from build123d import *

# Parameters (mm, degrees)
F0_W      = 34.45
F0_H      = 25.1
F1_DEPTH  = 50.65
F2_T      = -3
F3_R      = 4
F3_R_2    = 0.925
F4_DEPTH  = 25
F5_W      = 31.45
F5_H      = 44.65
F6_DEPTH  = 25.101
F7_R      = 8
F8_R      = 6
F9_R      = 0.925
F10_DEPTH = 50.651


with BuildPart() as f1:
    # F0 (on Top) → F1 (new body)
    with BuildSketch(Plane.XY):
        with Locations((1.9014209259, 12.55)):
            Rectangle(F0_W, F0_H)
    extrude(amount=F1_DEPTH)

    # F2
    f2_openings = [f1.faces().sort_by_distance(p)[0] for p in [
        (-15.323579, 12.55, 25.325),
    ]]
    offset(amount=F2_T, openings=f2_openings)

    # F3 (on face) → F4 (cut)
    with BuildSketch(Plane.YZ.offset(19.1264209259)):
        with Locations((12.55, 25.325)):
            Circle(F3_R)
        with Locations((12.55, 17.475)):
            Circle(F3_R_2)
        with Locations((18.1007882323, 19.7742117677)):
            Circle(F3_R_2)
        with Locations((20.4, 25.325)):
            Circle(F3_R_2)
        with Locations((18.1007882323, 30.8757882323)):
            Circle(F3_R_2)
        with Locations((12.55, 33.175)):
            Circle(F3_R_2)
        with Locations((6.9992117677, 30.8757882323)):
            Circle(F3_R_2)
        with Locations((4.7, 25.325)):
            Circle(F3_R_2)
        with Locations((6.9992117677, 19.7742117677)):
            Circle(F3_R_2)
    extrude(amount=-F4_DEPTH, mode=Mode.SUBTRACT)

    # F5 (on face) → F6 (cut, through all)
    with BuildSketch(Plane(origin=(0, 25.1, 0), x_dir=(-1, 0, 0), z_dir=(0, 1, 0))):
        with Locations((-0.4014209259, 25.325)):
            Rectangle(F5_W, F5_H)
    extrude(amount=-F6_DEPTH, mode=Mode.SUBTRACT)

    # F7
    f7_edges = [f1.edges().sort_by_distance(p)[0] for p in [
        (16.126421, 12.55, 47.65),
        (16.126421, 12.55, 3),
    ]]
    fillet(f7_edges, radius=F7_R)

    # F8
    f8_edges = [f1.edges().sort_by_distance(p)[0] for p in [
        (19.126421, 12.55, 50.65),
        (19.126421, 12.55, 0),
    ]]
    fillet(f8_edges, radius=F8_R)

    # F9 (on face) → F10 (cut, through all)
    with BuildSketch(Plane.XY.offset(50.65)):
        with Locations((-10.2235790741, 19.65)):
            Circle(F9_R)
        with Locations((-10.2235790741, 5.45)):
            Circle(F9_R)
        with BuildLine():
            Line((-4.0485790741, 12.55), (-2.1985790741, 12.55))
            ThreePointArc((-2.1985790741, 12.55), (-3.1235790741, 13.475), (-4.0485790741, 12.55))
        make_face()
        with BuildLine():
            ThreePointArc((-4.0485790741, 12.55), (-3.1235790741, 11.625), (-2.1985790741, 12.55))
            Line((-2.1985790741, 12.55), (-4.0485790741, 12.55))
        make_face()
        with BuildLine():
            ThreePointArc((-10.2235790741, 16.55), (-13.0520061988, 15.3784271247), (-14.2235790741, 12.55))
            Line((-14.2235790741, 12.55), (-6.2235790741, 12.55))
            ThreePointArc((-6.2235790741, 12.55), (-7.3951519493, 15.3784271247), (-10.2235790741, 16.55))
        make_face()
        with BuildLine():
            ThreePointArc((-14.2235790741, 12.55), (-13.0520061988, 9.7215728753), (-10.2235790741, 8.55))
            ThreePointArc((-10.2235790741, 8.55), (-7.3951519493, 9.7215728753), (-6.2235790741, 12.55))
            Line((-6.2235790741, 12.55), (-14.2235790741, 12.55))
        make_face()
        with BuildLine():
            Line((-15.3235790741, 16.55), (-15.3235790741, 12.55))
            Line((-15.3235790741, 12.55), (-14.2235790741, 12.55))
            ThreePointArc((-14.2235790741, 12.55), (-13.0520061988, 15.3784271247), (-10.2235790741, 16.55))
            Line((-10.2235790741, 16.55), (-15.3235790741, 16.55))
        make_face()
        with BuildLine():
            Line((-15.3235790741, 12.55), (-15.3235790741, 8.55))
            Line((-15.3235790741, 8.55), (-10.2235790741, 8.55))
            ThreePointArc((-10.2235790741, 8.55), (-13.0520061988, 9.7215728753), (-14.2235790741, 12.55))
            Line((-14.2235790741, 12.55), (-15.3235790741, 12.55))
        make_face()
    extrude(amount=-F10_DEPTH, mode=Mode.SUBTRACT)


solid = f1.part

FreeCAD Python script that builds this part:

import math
import FreeCAD as App
import Part
import Sketcher
from FreeCAD import Vector
Q = App.Units.Quantity


def edges_at(feature, points):
    """Names of the edges that pass closest to the given points."""
    edges = feature.Shape.Edges
    near = lambda p: min(range(len(edges)), key=lambda i: edges[i].distToShape(Part.Vertex(*p))[0])
    return sorted({f"Edge{near(p) + 1}" for p in points})


def faces_at(feature, points):
    """Names of the faces that lie closest to the given points."""
    faces = feature.Shape.Faces
    near = lambda p: min(range(len(faces)), key=lambda i: faces[i].distToShape(Part.Vertex(*p))[0])
    return sorted({f"Face{near(p) + 1}" for p in points})


def add_polygon(sketch, points):
    """Adds a closed chain of lines whose ends are joined by coincident constraints."""
    first, n = sketch.GeometryCount, len(points)
    for a, b in zip(points, points[1:] + points[:1]):
        sketch.addGeometry(Part.LineSegment(App.Vector(*a, 0), App.Vector(*b, 0)), False)
    for i in range(n):
        sketch.addConstraint(Sketcher.Constraint("Coincident", first + i, 2, first + (i + 1) % n, 1))

doc = App.newDocument("Part")
params = doc.addObject("Spreadsheet::Sheet", "Params")
for row, (alias, value) in enumerate([
    ("sketch1_height", "25.1 mm"),
    ("sketch1_width", "34.45 mm"),
    ("pad1_length", "50.65 mm"),
    ("thickness_wall", "3 mm"),
    ("sketch2_diameter", "8 mm"),
    ("sketch2_diameter2", "1.85 mm"),
    ("pocket1_length", "25 mm"),
    ("sketch3_width", "31.45 mm"),
    ("sketch3_height", "44.65 mm"),
    ("fillet_radius", "8 mm"),
    ("fillet2_radius", "6 mm"),
    ("sketch4_radius", "4 mm"),
    ("sketch4_diameter", "1.85 mm"),
    ("sketch4_width", "5.1 mm"),
], start=1):
    params.set(f"A{row}", alias)
    params.set(f"B{row}", "=" + value)
    params.setAlias(f"B{row}", alias)

body = doc.addObject("PartDesign::Body", "Body")

sketch1 = doc.addObject("Sketcher::SketchObject", "Sketch")
body.addObject(sketch1)
sketch1.AttachmentSupport = (doc.XY_Plane, [""])
sketch1.MapMode = "FlatFace"
add_polygon(sketch1, [(-15.323579, 25.1), (-15.323579, 0), (19.126421, 0), (19.126421, 25.1)])
sketch1.addConstraint(Sketcher.Constraint("Vertical", 0))
sketch1.addConstraint(Sketcher.Constraint("Horizontal", 1))
sketch1.addConstraint(Sketcher.Constraint("Vertical", 2))
sketch1.addConstraint(Sketcher.Constraint("Horizontal", 3))
sketch1.addConstraint(Sketcher.Constraint("PointOnObject", 0, 2, -1))
sketch1.addConstraint(Sketcher.Constraint("DistanceY", 0, 2, 0, 1, Q("25.1 mm")))
sketch1.addConstraint(Sketcher.Constraint("DistanceX", 1, 1, 1, 2, Q("34.45 mm")))
sketch1.addConstraint(Sketcher.Constraint("DistanceX", 0, 2, -1, 1, Q("15.323579 mm")))
sketch1.setExpression("Constraints[9]", "Params.sketch1_height")
sketch1.setExpression("Constraints[10]", "Params.sketch1_width")
pad1 = doc.addObject("PartDesign::Pad", "Pad")
body.addObject(pad1)
pad1.Profile = sketch1
pad1.setExpression("Length", "Params.pad1_length")
doc.recompute()

thickness = doc.addObject("PartDesign::Thickness", "Thickness")
body.addObject(thickness)
thickness.Base = (pad1, faces_at(pad1, [(-15.324, 12.55, 25.325)]))
thickness.setExpression("Value", "Params.thickness_wall")
thickness.Reversed = True
thickness.Join = "Arc"

sketch2 = doc.addObject("Sketcher::SketchObject", "Sketch001")
body.addObject(sketch2)
sketch2.AttachmentSupport = (doc.YZ_Plane, [""])
sketch2.MapMode = "FlatFace"
sketch2.AttachmentOffset = App.Placement(Vector(0, 0, 19.126421), App.Rotation())
sketch2.addGeometry(Part.Circle(Vector(12.55, 25.325, 0), Vector(0, 0, 1), 4), False)
sketch2.addGeometry(Part.Circle(Vector(12.55, 17.475, 0), Vector(0, 0, 1), 0.925), False)
sketch2.addGeometry(Part.Circle(Vector(18.100788, 19.774212, 0), Vector(0, 0, 1), 0.925), False)
sketch2.addGeometry(Part.Circle(Vector(20.4, 25.325, 0), Vector(0, 0, 1), 0.925), False)
sketch2.addGeometry(Part.Circle(Vector(18.100788, 30.875788, 0), Vector(0, 0, 1), 0.925), False)
sketch2.addGeometry(Part.Circle(Vector(12.55, 33.175, 0), Vector(0, 0, 1), 0.925), False)
sketch2.addGeometry(Part.Circle(Vector(6.999212, 30.875788, 0), Vector(0, 0, 1), 0.925), False)
sketch2.addGeometry(Part.Circle(Vector(4.7, 25.325, 0), Vector(0, 0, 1), 0.925), False)
sketch2.addGeometry(Part.Circle(Vector(6.999212, 19.774212, 0), Vector(0, 0, 1), 0.925), False)
sketch2.addConstraint(Sketcher.Constraint("Equal", 1, 2))
sketch2.addConstraint(Sketcher.Constraint("Equal", 2, 3))
sketch2.addConstraint(Sketcher.Constraint("Equal", 3, 4))
sketch2.addConstraint(Sketcher.Constraint("Equal", 4, 5))
sketch2.addConstraint(Sketcher.Constraint("Equal", 5, 6))
sketch2.addConstraint(Sketcher.Constraint("Equal", 6, 7))
sketch2.addConstraint(Sketcher.Constraint("Equal", 7, 8))
sketch2.addConstraint(Sketcher.Constraint("Horizontal", 0, 3, 3, 3))
sketch2.addConstraint(Sketcher.Constraint("Horizontal", 4, 3, 6, 3))
sketch2.addConstraint(Sketcher.Constraint("Horizontal", 3, 3, 7, 3))
sketch2.addConstraint(Sketcher.Constraint("Horizontal", 2, 3, 8, 3))
sketch2.addConstraint(Sketcher.Constraint("Vertical", 0, 3, 1, 3))
sketch2.addConstraint(Sketcher.Constraint("Vertical", 2, 3, 4, 3))
sketch2.addConstraint(Sketcher.Constraint("Vertical", 1, 3, 5, 3))
sketch2.addConstraint(Sketcher.Constraint("Vertical", 6, 3, 8, 3))
sketch2.addConstraint(Sketcher.Constraint("Diameter", 0, Q("8 mm")))
sketch2.addConstraint(Sketcher.Constraint("Diameter", 1, Q("1.85 mm")))
sketch2.addConstraint(Sketcher.Constraint("DistanceX", -1, 1, 3, 3, Q("20.4 mm")))
sketch2.addConstraint(Sketcher.Constraint("DistanceX", -1, 1, 7, 3, Q("4.7 mm")))
sketch2.addConstraint(Sketcher.Constraint("DistanceY", 1, 3, 5, 3, Q("15.7 mm")))
sketch2.addConstraint(Sketcher.Constraint("DistanceX", -1, 1, 0, 3, Q("12.55 mm")))
sketch2.addConstraint(Sketcher.Constraint("DistanceY", 1, 3, 0, 3, Q("7.85 mm")))
sketch2.addConstraint(Sketcher.Constraint("DistanceY", -1, 1, 0, 3, Q("25.325 mm")))
sketch2.addConstraint(Sketcher.Constraint("DistanceX", -1, 1, 2, 3, Q("18.100788 mm")))
sketch2.addConstraint(Sketcher.Constraint("DistanceY", -1, 1, 2, 3, Q("19.774212 mm")))
sketch2.addConstraint(Sketcher.Constraint("DistanceY", -1, 1, 4, 3, Q("30.875788 mm")))
sketch2.addConstraint(Sketcher.Constraint("DistanceX", -1, 1, 6, 3, Q("6.999212 mm")))
sketch2.setExpression("Constraints[15]", "Params.sketch2_diameter")
sketch2.setExpression("Constraints[16]", "Params.sketch2_diameter2")
pocket1 = doc.addObject("PartDesign::Pocket", "Pocket")
body.addObject(pocket1)
pocket1.Profile = sketch2
pocket1.setExpression("Length", "Params.pocket1_length")

sketch3 = doc.addObject("Sketcher::SketchObject", "Sketch002")
body.addObject(sketch3)
sketch3.AttachmentSupport = (doc.XZ_Plane, [""])
sketch3.MapMode = "FlatFace"
sketch3.AttachmentOffset = App.Placement(Vector(0, 0, -25.1), App.Rotation())
add_polygon(sketch3, [(16.126421, 47.65), (16.126421, 3), (-15.323579, 3), (-15.323579, 47.65)])
sketch3.addConstraint(Sketcher.Constraint("Vertical", 0))
sketch3.addConstraint(Sketcher.Constraint("Horizontal", 1))
sketch3.addConstraint(Sketcher.Constraint("Vertical", 2))
sketch3.addConstraint(Sketcher.Constraint("Horizontal", 3))
sketch3.addConstraint(Sketcher.Constraint("DistanceY", -1, 1, 0, 2, Q("3 mm")))
sketch3.addConstraint(Sketcher.Constraint("DistanceX", 1, 2, 1, 1, Q("31.45 mm")))
sketch3.addConstraint(Sketcher.Constraint("DistanceY", 0, 2, 0, 1, Q("44.65 mm")))
sketch3.addConstraint(Sketcher.Constraint("DistanceX", -1, 1, 0, 2, Q("16.126421 mm")))
sketch3.setExpression("Constraints[9]", "Params.sketch3_width")
sketch3.setExpression("Constraints[10]", "Params.sketch3_height")
pocket2 = doc.addObject("PartDesign::Pocket", "Pocket001")
body.addObject(pocket2)
pocket2.Profile = sketch3
pocket2.Type = "ThroughAll"
pocket2.Reversed = True
doc.recompute()

fillet = doc.addObject("PartDesign::Fillet", "Fillet")
body.addObject(fillet)
fillet.Base = (pocket2, edges_at(pocket2, [(16.126, 12.55, 47.65), (16.126, 12.55, 3)]))
fillet.setExpression("Radius", "Params.fillet_radius")
doc.recompute()

fillet2 = doc.addObject("PartDesign::Fillet", "Fillet001")
body.addObject(fillet2)
fillet2.Base = (fillet, edges_at(fillet, [(19.126, 12.55, 50.65), (19.126, 12.55, 0)]))
fillet2.setExpression("Radius", "Params.fillet2_radius")

sketch4 = doc.addObject("Sketcher::SketchObject", "Sketch003")
body.addObject(sketch4)
sketch4.AttachmentSupport = (doc.XY_Plane, [""])
sketch4.MapMode = "FlatFace"
sketch4.AttachmentOffset = App.Placement(Vector(0, 0, 50.65), App.Rotation())
sketch4.addGeometry(Part.Circle(Vector(-10.223579, 19.65, 0), Vector(0, 0, 1), 0.925), False)
sketch4.addGeometry(Part.Circle(Vector(-10.223579, 5.45, 0), Vector(0, 0, 1), 0.925), False)
sketch4.addGeometry(Part.Circle(Vector(-3.123579, 12.55, 0), Vector(0, 0, 1), 0.925), False)
sketch4.addGeometry(Part.ArcOfCircle(Part.Circle(Vector(-10.223579, 12.55, 0), Vector(0, 0, 1), 4), math.radians(-90), math.radians(0)), False)
sketch4.addGeometry(Part.ArcOfCircle(Part.Circle(Vector(-10.223579, 12.55, 0), Vector(0, 0, 1), 4), math.radians(0), math.radians(90)), False)
sketch4.addGeometry(Part.LineSegment(Vector(-10.223579, 16.55, 0), Vector(-15.323579, 16.55, 0)), False)
sketch4.addGeometry(Part.LineSegment(Vector(-15.323579, 16.55, 0), Vector(-15.323579, 8.55, 0)), False)
sketch4.addGeometry(Part.LineSegment(Vector(-15.323579, 8.55, 0), Vector(-10.223579, 8.55, 0)), False)
sketch4.addConstraint(Sketcher.Constraint("Tangent", 3, 2, 4, 1))
sketch4.addConstraint(Sketcher.Constraint("Tangent", 4, 2, 5, 1))
sketch4.addConstraint(Sketcher.Constraint("Coincident", 5, 2, 6, 1))
sketch4.addConstraint(Sketcher.Constraint("Coincident", 6, 2, 7, 1))
sketch4.addConstraint(Sketcher.Constraint("Tangent", 7, 2, 3, 1))
sketch4.addConstraint(Sketcher.Constraint("Horizontal", 5))
sketch4.addConstraint(Sketcher.Constraint("Vertical", 6))
sketch4.addConstraint(Sketcher.Constraint("Horizontal", 7))
sketch4.addConstraint(Sketcher.Constraint("Equal", 0, 1))
sketch4.addConstraint(Sketcher.Constraint("Equal", 1, 2))
sketch4.addConstraint(Sketcher.Constraint("Equal", 3, 4))
sketch4.addConstraint(Sketcher.Constraint("Horizontal", 2, 3, 3, 3))
sketch4.addConstraint(Sketcher.Constraint("Horizontal", 4, 3, 3, 2))
sketch4.addConstraint(Sketcher.Constraint("Vertical", 0, 3, 1, 3))
sketch4.addConstraint(Sketcher.Constraint("Vertical", 1, 3, 3, 3))
sketch4.addConstraint(Sketcher.Constraint("Radius", 3, Q("4 mm")))
sketch4.addConstraint(Sketcher.Constraint("Diameter", 0, Q("1.85 mm")))
sketch4.addConstraint(Sketcher.Constraint("DistanceX", 5, 2, 5, 1, Q("5.1 mm")))
sketch4.addConstraint(Sketcher.Constraint("DistanceY", 1, 3, 0, 3, Q("14.2 mm")))
sketch4.addConstraint(Sketcher.Constraint("DistanceX", 0, 3, 2, 3, Q("7.1 mm")))
sketch4.addConstraint(Sketcher.Constraint("DistanceY", 2, 3, 0, 3, Q("7.1 mm")))
sketch4.addConstraint(Sketcher.Constraint("DistanceY", -1, 1, 0, 3, Q("19.65 mm")))
sketch4.addConstraint(Sketcher.Constraint("DistanceX", 0, 3, -1, 1, Q("10.223579 mm")))
sketch4.setExpression("Constraints[15]", "Params.sketch4_radius")
sketch4.setExpression("Constraints[16]", "Params.sketch4_diameter")
sketch4.setExpression("Constraints[17]", "Params.sketch4_width")
pocket3 = doc.addObject("PartDesign::Pocket", "Pocket002")
body.addObject(pocket3)
pocket3.Profile = sketch4
pocket3.Type = "ThroughAll"

doc.recompute()
